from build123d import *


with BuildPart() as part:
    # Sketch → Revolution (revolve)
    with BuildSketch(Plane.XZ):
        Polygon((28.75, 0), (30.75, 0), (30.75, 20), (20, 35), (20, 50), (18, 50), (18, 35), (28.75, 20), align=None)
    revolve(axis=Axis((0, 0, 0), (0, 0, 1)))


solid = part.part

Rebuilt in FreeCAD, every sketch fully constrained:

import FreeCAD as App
import Part
import Sketcher
Q = App.Units.Quantity


def add_polygon(sketch, points):
    """Adds a closed chain of lines whose ends are joined by coincident constraints."""
    first, n = sketch.GeometryCount, len(points)
    for a, b in zip(points, points[1:] + points[:1]):
        sketch.addGeometry(Part.LineSegment(App.Vector(*a, 0), App.Vector(*b, 0)), False)
    for i in range(n):
        sketch.addConstraint(Sketcher.Constraint("Coincident", first + i, 2, first + (i + 1) % n, 1))

doc = App.newDocument("Part")
params = doc.addObject("Spreadsheet::Sheet", "Params")
for row, (alias, value) in enumerate([
    ("sketch1_width", "2 mm"),
    ("sketch1_height", "20 mm"),
    ("sketch1_height2", "15 mm"),
    ("revolution_angle", "360 deg"),
], start=1):
    params.set(f"A{row}", alias)
    params.set(f"B{row}", "=" + value)
    params.setAlias(f"B{row}", alias)

body = doc.addObject("PartDesign::Body", "Body")

# Sketch on XZ plane
sketch1 = doc.addObject("Sketcher::SketchObject", "Sketch")
body.addObject(sketch1)
sketch1.AttachmentSupport = (doc.XZ_Plane, [""])
sketch1.MapMode = "FlatFace"
add_polygon(sketch1, [(28.8, 0), (30.8, 0), (30.8, 20), (20, 35), (20, 50), (18, 50), (18, 35), (28.8, 20)])  # lines 0-7
sketch1.addConstraint([
    Sketcher.Constraint("Horizontal", 0),
    Sketcher.Constraint("Vertical", 1),
    Sketcher.Constraint("Vertical", 3),
    Sketcher.Constraint("Horizontal", 4),
    Sketcher.Constraint("Vertical", 5),
    Sketcher.Constraint("Vertical", 7),
    Sketcher.Constraint("PointOnObject", 0, 2, -1),
    Sketcher.Constraint("Parallel", 2, 6),
    Sketcher.Constraint("Horizontal", 2, 2, 5, 2),
    Sketcher.Constraint("Horizontal", 1, 2, 6, 2),
    Sketcher.Constraint("DistanceX", 0, 1, 0, 2, Q("2 mm")),
    Sketcher.Constraint("DistanceY", 1, 1, 1, 2, Q("20 mm")),
    Sketcher.Constraint("DistanceY", 3, 1, 3, 2, Q("15 mm")),
    Sketcher.Constraint("DistanceX", -1, 1, 2, 2, Q("20 mm")),
    Sketcher.Constraint("DistanceY", -1, 1, 2, 2, Q("35 mm")),
    Sketcher.Constraint("DistanceX", -1, 1, 0, 2, Q("30.75 mm")),
])
sketch1.setExpression("Constraints[18]", "Params.sketch1_width")
sketch1.setExpression("Constraints[19]", "Params.sketch1_height")
sketch1.setExpression("Constraints[20]", "Params.sketch1_height2")
revolution = doc.addObject("PartDesign::Revolution", "Revolution")
body.addObject(revolution)
revolution.Profile = sketch1
revolution.ReferenceAxis = (sketch1, ["V_Axis"])
revolution.setExpression("Angle", "Params.revolution_angle")

doc.recompute()
